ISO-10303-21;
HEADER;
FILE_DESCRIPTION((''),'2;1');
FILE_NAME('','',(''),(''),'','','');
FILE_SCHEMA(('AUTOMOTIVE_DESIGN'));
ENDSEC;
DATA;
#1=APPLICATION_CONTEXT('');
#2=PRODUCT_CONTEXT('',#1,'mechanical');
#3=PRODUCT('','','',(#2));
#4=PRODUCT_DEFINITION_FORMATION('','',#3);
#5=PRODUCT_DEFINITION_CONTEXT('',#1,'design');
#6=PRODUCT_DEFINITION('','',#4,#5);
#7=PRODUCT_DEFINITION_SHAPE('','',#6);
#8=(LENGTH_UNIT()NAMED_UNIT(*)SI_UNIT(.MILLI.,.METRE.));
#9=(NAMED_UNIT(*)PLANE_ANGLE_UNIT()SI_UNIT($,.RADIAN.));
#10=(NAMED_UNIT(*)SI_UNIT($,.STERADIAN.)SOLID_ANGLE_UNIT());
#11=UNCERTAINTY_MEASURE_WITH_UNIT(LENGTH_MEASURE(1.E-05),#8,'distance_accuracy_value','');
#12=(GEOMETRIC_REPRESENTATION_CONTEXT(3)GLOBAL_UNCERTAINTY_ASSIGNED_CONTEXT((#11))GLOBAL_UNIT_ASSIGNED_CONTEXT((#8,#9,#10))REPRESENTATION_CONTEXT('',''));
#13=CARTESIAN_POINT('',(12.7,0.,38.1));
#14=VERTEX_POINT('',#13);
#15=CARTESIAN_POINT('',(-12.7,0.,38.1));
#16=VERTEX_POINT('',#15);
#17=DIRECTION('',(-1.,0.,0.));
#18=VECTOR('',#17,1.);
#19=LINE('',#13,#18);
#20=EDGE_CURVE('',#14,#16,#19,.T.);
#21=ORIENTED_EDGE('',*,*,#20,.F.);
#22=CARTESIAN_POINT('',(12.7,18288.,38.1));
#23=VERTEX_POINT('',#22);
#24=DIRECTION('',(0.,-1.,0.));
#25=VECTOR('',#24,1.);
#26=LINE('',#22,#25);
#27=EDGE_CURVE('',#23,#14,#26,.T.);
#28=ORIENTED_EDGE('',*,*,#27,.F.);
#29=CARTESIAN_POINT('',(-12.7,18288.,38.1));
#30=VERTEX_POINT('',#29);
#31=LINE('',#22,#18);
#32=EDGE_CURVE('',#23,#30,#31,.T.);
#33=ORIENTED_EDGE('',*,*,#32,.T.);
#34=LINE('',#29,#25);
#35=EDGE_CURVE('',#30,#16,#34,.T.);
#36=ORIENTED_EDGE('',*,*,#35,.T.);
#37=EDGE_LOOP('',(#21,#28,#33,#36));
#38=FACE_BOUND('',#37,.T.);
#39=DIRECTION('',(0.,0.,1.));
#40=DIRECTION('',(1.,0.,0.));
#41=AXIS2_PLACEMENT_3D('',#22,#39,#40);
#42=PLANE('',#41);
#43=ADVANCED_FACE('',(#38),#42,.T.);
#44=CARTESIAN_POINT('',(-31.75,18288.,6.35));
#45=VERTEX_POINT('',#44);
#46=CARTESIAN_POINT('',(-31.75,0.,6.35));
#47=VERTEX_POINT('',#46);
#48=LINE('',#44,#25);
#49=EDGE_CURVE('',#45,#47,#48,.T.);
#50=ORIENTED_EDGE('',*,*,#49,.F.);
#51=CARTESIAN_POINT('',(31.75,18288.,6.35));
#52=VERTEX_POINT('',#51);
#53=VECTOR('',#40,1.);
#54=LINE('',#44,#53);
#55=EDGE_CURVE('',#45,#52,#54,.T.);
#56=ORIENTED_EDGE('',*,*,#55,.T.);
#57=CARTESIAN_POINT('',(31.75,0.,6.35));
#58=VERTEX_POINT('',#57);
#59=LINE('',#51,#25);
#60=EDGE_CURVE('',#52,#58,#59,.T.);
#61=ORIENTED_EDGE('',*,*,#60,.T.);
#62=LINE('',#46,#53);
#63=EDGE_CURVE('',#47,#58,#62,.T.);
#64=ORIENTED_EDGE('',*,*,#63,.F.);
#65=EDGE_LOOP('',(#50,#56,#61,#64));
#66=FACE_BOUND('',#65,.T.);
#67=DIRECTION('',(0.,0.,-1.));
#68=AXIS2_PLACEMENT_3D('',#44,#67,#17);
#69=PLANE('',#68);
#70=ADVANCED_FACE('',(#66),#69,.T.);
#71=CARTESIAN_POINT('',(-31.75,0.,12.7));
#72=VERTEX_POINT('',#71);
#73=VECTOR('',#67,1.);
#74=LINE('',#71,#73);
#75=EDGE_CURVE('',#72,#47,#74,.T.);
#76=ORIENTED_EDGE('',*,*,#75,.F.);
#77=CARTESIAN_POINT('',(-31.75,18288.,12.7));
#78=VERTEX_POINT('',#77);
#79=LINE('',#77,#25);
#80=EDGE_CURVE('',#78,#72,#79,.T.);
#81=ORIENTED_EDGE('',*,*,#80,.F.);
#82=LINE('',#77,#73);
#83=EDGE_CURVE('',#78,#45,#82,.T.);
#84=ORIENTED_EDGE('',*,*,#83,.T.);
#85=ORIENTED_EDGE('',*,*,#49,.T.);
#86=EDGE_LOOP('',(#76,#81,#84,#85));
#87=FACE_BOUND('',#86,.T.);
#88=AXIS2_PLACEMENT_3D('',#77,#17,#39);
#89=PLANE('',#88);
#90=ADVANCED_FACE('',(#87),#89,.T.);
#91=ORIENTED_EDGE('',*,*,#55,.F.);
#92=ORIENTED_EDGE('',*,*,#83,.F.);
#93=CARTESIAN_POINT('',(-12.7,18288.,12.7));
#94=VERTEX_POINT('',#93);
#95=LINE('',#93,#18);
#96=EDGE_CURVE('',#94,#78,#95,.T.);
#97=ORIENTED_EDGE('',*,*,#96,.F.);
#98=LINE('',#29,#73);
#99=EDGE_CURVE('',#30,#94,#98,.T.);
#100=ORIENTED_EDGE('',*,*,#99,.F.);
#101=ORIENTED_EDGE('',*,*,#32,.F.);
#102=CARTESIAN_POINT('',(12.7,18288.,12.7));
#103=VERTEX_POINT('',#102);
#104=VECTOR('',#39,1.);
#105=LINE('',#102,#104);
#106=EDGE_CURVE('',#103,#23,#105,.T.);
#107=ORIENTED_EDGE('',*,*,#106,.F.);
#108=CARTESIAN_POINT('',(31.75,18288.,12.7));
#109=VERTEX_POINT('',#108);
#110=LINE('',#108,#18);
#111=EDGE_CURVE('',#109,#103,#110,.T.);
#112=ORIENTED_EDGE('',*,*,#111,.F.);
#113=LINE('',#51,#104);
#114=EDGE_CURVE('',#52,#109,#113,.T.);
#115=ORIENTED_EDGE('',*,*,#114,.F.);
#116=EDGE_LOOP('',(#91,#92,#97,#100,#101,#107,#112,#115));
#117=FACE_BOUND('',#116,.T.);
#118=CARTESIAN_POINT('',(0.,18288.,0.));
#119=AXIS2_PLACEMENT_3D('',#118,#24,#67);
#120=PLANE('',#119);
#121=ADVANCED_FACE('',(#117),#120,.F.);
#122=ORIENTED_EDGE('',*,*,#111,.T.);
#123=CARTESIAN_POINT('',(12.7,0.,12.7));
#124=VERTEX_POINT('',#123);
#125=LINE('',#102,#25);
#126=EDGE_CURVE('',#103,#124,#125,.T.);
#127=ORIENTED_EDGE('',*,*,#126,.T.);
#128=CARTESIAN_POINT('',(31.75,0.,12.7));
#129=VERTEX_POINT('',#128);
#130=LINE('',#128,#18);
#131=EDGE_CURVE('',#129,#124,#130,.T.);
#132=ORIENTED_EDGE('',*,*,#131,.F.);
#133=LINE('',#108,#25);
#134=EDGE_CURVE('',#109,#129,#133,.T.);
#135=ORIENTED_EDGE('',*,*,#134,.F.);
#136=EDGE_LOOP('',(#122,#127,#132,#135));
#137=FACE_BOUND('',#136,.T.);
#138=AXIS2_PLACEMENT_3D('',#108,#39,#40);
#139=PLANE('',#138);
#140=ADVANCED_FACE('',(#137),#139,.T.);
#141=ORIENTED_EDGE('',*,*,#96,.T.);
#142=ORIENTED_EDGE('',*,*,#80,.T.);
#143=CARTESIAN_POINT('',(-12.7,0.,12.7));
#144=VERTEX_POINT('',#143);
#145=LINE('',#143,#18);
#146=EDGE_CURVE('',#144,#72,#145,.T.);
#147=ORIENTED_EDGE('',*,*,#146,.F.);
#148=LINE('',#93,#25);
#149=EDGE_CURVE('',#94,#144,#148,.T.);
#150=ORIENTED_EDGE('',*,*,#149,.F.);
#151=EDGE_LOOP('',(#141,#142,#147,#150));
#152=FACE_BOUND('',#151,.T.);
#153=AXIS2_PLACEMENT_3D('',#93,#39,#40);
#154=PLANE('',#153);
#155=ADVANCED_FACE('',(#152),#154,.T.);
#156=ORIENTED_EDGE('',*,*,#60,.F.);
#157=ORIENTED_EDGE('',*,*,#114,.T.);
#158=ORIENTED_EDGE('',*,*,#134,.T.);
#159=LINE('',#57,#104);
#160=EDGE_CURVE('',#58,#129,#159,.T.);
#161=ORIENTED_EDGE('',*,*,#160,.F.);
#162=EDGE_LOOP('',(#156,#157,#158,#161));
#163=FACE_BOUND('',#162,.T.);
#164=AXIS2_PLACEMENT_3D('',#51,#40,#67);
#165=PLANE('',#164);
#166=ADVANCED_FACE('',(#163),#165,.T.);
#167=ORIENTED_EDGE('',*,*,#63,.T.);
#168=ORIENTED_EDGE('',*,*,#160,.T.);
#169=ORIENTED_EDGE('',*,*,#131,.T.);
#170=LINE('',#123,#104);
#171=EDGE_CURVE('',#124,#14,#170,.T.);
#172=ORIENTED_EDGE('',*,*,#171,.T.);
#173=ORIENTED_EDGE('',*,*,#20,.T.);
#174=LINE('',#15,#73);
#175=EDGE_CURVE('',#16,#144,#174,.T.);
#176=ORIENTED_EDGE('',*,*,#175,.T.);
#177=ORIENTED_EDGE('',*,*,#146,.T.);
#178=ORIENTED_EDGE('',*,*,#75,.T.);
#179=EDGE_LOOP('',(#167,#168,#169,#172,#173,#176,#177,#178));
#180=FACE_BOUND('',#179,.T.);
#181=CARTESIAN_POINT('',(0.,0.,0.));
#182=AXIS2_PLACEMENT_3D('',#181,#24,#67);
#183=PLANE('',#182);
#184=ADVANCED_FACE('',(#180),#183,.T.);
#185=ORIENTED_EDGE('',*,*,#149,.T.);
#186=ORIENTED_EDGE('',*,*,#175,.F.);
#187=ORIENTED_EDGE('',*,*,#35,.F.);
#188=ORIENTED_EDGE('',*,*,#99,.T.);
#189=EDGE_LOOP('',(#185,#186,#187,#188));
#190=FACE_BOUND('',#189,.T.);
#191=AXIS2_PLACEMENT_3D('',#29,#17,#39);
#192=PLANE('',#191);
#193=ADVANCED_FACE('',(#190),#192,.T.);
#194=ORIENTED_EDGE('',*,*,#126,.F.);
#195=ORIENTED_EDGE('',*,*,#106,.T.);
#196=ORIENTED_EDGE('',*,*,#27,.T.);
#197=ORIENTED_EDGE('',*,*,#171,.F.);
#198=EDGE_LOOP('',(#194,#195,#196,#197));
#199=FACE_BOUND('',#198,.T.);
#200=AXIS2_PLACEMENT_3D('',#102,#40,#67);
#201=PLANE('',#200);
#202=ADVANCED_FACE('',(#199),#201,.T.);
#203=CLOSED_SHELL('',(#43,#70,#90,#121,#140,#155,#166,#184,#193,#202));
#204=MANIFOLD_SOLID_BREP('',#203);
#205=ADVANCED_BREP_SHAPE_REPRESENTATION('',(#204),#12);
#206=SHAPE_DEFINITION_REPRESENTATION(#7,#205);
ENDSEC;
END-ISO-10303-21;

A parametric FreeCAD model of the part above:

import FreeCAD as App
import Part
import Sketcher
Q = App.Units.Quantity


def add_polygon(sketch, points):
    """Adds a closed chain of lines whose ends are joined by coincident constraints."""
    first, n = sketch.GeometryCount, len(points)
    for a, b in zip(points, points[1:] + points[:1]):
        sketch.addGeometry(Part.LineSegment(App.Vector(*a, 0), App.Vector(*b, 0)), False)
    for i in range(n):
        sketch.addConstraint(Sketcher.Constraint("Coincident", first + i, 2, first + (i + 1) % n, 1))

doc = App.newDocument("Part")
body = doc.addObject("PartDesign::Body", "Body")

# Sketch on XZ plane
sketch1 = body.newObject("Sketcher::SketchObject", "Sketch")
sketch1.AttachmentSupport = (doc.getObject("XZ_Plane"), [""])
sketch1.MapMode = "FlatFace"
add_polygon(sketch1, [(32, 6), (-32, 6), (-32, 13), (-13, 13), (-13, 38), (13, 38), (13, 13), (32, 13)])  # lines 0-7
sketch1.addConstraint(Sketcher.Constraint("Horizontal", 0))
sketch1.addConstraint(Sketcher.Constraint("Vertical", 1))
sketch1.addConstraint(Sketcher.Constraint("Horizontal", 2))
sketch1.addConstraint(Sketcher.Constraint("Vertical", 3))
sketch1.addConstraint(Sketcher.Constraint("Horizontal", 4))
sketch1.addConstraint(Sketcher.Constraint("Vertical", 5))
sketch1.addConstraint(Sketcher.Constraint("Horizontal", 6))
sketch1.addConstraint(Sketcher.Constraint("Vertical", 7))
sketch1.addConstraint(Sketcher.Constraint("Symmetric", 2, 2, 5, 2, -2))
sketch1.addConstraint(Sketcher.Constraint("Equal", 2, 6))
sketch1.addConstraint(Sketcher.Constraint("Equal", 4, 3))
sketch1.addConstraint(Sketcher.Constraint("DistanceX", 4, 1, 4, 2, Q("1 in")))
sketch1.addConstraint(Sketcher.Constraint("DistanceX", 0, 2, 0, 1, Q("2.5 in")))
sketch1.addConstraint(Sketcher.Constraint("DistanceY", 1, 1, 1, 2, Q("0.25 in")))
sketch1.addConstraint(Sketcher.Constraint("DistanceY", -1, 1, 1, 2, Q("0.5 in")))
pad1 = body.newObject("PartDesign::Pad", "Pad")
pad1.Profile = sketch1
pad1.Length = Q("720 in")
pad1.Reversed = True

doc.recompute()
